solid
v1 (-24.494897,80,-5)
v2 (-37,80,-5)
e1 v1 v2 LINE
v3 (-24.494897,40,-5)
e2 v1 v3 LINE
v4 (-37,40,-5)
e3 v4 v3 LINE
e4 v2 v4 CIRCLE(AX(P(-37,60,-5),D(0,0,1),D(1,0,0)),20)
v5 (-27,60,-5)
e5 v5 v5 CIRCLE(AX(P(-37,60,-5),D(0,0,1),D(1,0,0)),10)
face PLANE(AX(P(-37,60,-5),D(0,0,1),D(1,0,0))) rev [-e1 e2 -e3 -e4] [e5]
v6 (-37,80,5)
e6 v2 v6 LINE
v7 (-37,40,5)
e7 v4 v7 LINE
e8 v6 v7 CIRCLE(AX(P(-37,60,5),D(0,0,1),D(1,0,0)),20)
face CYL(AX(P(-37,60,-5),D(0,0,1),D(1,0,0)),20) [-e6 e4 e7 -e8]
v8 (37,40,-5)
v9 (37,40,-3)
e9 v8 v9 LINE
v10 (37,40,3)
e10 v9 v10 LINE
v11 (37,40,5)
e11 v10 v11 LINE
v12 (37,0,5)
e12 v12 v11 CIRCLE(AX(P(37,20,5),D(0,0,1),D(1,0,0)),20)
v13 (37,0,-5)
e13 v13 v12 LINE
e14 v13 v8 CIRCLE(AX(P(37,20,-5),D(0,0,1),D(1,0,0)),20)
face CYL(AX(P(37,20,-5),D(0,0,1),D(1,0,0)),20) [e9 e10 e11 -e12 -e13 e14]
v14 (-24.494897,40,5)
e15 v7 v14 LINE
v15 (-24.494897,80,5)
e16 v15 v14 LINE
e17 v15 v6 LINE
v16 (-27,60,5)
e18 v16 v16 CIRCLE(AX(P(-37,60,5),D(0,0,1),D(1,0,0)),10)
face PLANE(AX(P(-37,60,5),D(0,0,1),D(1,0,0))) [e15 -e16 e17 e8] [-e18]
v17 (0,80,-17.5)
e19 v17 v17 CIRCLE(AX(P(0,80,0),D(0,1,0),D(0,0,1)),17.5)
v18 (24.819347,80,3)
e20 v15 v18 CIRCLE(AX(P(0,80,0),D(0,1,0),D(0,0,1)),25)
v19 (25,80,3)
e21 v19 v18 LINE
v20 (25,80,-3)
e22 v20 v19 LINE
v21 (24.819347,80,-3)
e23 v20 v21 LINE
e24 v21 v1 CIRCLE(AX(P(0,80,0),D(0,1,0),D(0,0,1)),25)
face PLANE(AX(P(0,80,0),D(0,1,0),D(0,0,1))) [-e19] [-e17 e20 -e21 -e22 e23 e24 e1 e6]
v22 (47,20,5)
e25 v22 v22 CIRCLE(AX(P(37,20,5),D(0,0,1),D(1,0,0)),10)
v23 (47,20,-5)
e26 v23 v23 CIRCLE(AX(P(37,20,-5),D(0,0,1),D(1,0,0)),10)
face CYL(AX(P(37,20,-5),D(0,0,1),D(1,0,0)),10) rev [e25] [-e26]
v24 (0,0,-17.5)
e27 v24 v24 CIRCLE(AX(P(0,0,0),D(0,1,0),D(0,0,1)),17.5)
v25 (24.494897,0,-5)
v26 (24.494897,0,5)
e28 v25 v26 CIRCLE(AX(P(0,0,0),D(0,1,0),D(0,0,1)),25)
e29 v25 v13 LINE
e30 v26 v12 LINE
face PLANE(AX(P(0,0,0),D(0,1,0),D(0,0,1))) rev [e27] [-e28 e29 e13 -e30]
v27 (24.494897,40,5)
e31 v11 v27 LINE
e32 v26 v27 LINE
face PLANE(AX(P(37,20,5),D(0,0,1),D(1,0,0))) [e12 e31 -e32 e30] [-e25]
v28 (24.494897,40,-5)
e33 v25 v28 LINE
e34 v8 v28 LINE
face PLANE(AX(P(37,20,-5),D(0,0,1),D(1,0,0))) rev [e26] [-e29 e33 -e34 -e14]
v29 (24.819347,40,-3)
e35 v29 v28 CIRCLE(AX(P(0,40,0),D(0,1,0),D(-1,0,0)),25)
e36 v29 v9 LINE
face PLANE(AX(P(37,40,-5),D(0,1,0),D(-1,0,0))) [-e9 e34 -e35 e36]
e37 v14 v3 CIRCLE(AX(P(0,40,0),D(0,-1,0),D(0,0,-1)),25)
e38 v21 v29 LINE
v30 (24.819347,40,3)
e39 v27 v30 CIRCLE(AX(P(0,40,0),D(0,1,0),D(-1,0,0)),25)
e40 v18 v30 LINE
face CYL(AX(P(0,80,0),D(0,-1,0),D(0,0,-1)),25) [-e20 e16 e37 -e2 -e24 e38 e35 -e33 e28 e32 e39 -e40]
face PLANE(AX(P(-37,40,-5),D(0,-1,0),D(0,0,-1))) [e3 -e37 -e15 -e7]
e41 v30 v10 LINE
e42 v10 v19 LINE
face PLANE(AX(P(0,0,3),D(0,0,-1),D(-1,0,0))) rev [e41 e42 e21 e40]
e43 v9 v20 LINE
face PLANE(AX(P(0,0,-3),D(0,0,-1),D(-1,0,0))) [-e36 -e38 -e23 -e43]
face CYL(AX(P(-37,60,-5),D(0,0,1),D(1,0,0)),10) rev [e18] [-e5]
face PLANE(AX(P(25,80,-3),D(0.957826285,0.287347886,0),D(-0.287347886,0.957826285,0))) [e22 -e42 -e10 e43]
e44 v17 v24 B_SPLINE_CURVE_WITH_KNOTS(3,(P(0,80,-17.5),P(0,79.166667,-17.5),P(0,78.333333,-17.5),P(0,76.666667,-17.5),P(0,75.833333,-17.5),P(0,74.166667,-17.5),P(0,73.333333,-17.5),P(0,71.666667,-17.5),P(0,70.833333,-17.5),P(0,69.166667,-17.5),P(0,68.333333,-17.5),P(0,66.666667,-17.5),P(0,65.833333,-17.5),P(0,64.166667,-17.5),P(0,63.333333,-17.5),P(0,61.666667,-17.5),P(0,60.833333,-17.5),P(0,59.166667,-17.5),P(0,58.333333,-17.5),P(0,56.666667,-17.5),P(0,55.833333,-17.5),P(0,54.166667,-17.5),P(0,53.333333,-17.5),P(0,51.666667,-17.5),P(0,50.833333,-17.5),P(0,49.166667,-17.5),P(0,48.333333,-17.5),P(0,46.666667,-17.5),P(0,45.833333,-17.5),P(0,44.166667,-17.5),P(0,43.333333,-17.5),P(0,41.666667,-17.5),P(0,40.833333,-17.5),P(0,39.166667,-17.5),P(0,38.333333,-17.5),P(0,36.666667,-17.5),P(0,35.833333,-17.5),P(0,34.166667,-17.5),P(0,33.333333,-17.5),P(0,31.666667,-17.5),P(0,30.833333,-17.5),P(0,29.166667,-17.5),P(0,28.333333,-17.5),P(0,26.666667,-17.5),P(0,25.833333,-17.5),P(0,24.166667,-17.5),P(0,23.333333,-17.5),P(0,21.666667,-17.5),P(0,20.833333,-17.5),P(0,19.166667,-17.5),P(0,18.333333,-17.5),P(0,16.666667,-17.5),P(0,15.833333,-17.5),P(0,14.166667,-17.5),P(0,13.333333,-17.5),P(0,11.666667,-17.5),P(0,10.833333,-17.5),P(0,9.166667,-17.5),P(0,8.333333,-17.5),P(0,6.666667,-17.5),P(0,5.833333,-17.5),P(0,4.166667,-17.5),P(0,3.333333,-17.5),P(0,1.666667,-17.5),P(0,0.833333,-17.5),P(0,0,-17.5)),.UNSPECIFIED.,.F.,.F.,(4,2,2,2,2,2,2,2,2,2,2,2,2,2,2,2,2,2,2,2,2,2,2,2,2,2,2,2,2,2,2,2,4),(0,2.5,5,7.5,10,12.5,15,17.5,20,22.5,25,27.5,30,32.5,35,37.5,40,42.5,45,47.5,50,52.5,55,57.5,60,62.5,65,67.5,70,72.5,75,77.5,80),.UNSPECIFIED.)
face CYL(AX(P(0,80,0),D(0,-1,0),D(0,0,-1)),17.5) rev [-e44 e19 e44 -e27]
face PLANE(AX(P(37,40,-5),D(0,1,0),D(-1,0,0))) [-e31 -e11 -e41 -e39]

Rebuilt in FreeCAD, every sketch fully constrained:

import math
import FreeCAD as App
import Part
import Sketcher

V = App.Vector


def add_polygon(sketch, points):
    """Adds a closed chain of lines whose ends are joined by coincident constraints."""
    first, n = sketch.GeometryCount, len(points)
    for a, b in zip(points, points[1:] + points[:1]):
        sketch.addGeometry(Part.LineSegment(App.Vector(*a, 0), App.Vector(*b, 0)), False)
    for i in range(n):
        sketch.addConstraint(Sketcher.Constraint("Coincident", first + i, 2, first + (i + 1) % n, 1))

doc = App.newDocument("Part")
body = doc.addObject("PartDesign::Body", "Body")

sketch1 = body.newObject("Sketcher::SketchObject", "Sketch")
sketch1.AttachmentSupport = (doc.getObject("XZ_Plane"), [""])
sketch1.MapMode = "FlatFace"
sketch1.addGeometry(Part.Circle(V(0, 0, 0), V(0, 0, 1), 25), False)
sketch1.addConstraint(Sketcher.Constraint("Coincident", 0, 3, -1, 1))
sketch1.addConstraint(Sketcher.Constraint("Diameter", 0, 50.0))
pad1 = body.newObject("PartDesign::Pad", "Pad")
pad1.Profile = sketch1
pad1.Length = 80
pad1.Reversed = True

sketch2 = body.newObject("Sketcher::SketchObject", "Sketch001")
sketch2.AttachmentSupport = (doc.getObject("XY_Plane"), [""])
sketch2.MapMode = "FlatFace"
sketch2.addGeometry(Part.LineSegment(V(0, 80, 0), V(-37, 80, 0)), False)
sketch2.addGeometry(Part.ArcOfCircle(Part.Circle(V(-37, 60, 0), V(0, 0, 1), 20), math.radians(90), math.radians(270)), False)
sketch2.addGeometry(Part.LineSegment(V(-37, 40, 0), V(0, 40, 0)), False)
sketch2.addGeometry(Part.LineSegment(V(0, 40, 0), V(0, 80, 0)), False)
sketch2.addGeometry(Part.Circle(V(-37, 60, 0), V(0, 0, 1), 10), False)
sketch2.addConstraint(Sketcher.Constraint("Tangent", 0, 2, 1, 1))
sketch2.addConstraint(Sketcher.Constraint("Tangent", 1, 2, 2, 1))
sketch2.addConstraint(Sketcher.Constraint("Coincident", 2, 2, 3, 1))
sketch2.addConstraint(Sketcher.Constraint("Coincident", 3, 2, 0, 1))
sketch2.addConstraint(Sketcher.Constraint("Horizontal", 0))
sketch2.addConstraint(Sketcher.Constraint("Horizontal", 2))
sketch2.addConstraint(Sketcher.Constraint("Vertical", 3))
sketch2.addConstraint(Sketcher.Constraint("Coincident", 4, 3, 1, 3))
sketch2.addConstraint(Sketcher.Constraint("PointOnObject", 2, 2, -2))
sketch2.addConstraint(Sketcher.Constraint("Diameter", 4, 20.0))
sketch2.addConstraint(Sketcher.Constraint("Radius", 1, 20.0))
sketch2.addConstraint(Sketcher.Constraint("DistanceX", 0, 2, 0, 1, 37.0))
sketch2.addConstraint(Sketcher.Constraint("DistanceY", -1, 1, 1, 3, 60.0))
pad2 = body.newObject("PartDesign::Pad", "Pad001")
pad2.Profile = sketch2
pad2.Type = "TwoLengths"
pad2.Length = 5
pad2.Length2 = 5

sketch3 = body.newObject("Sketcher::SketchObject", "Sketch002")
sketch3.AttachmentSupport = (doc.getObject("XY_Plane"), [""])
sketch3.MapMode = "FlatFace"
sketch3.addGeometry(Part.LineSegment(V(0, 0, 0), V(37, 0, 0)), False)
sketch3.addGeometry(Part.ArcOfCircle(Part.Circle(V(37, 20, 0), V(0, 0, 1), 20), math.radians(-90), math.radians(90)), False)
sketch3.addGeometry(Part.LineSegment(V(37, 40, 0), V(0, 40, 0)), False)
sketch3.addGeometry(Part.LineSegment(V(0, 40, 0), V(0, 0, 0)), False)
sketch3.addGeometry(Part.Circle(V(37, 20, 0), V(0, 0, 1), 10), False)
sketch3.addConstraint(Sketcher.Constraint("Tangent", 0, 2, 1, 1))
sketch3.addConstraint(Sketcher.Constraint("Tangent", 1, 2, 2, 1))
sketch3.addConstraint(Sketcher.Constraint("Coincident", 2, 2, 3, 1))
sketch3.addConstraint(Sketcher.Constraint("Coincident", 3, 2, 0, 1))
sketch3.addConstraint(Sketcher.Constraint("Horizontal", 0))
sketch3.addConstraint(Sketcher.Constraint("Horizontal", 2))
sketch3.addConstraint(Sketcher.Constraint("Vertical", 3))
sketch3.addConstraint(Sketcher.Constraint("Coincident", 3, 2, -1, 1))
sketch3.addConstraint(Sketcher.Constraint("Coincident", 4, 3, 1, 3))
sketch3.addConstraint(Sketcher.Constraint("Diameter", 4, 20.0))
sketch3.addConstraint(Sketcher.Constraint("Radius", 1, 20.0))
sketch3.addConstraint(Sketcher.Constraint("DistanceX", 0, 1, 0, 2, 37.0))
pad3 = body.newObject("PartDesign::Pad", "Pad002")
pad3.Profile = sketch3
pad3.Type = "TwoLengths"
pad3.Length = 5
pad3.Length2 = 5

sketch4 = body.newObject("Sketcher::SketchObject", "Sketch003")
sketch4.AttachmentSupport = (doc.getObject("XY_Plane"), [""])
sketch4.MapMode = "FlatFace"
add_polygon(sketch4, [(37, 40), (25, 80), (0, 80), (0, 40)])
sketch4.addConstraint(Sketcher.Constraint("Horizontal", 1))
sketch4.addConstraint(Sketcher.Constraint("Vertical", 2))
sketch4.addConstraint(Sketcher.Constraint("Horizontal", 3))
sketch4.addConstraint(Sketcher.Constraint("DistanceY", 2, 2, 2, 1, 40.0))
sketch4.addConstraint(Sketcher.Constraint("DistanceX", -1, 1, 0, 2, 25.0))
sketch4.addConstraint(Sketcher.Constraint("DistanceY", -1, 1, 0, 2, 80.0))
sketch4.addConstraint(Sketcher.Constraint("DistanceX", -1, 1, 3, 2, 37.0))
sketch4.addConstraint(Sketcher.Constraint("DistanceX", 1, 2, 1, 1, 24.747449))
pad4 = body.newObject("PartDesign::Pad", "Pad003")
pad4.Profile = sketch4
pad4.Type = "TwoLengths"
pad4.Length = 3
pad4.Length2 = 3

sketch5 = body.newObject("Sketcher::SketchObject", "Sketch004")
sketch5.AttachmentSupport = (doc.getObject("XZ_Plane"), [""])
sketch5.MapMode = "FlatFace"
sketch5.addGeometry(Part.Circle(V(0, 0, 0), V(0, 0, 1), 18), False)
sketch5.addConstraint(Sketcher.Constraint("Coincident", 0, 3, -1, 1))
sketch5.addConstraint(Sketcher.Constraint("Diameter", 0, 35.0))
pocket1 = body.newObject("PartDesign::Pocket", "Pocket")
pocket1.Profile = sketch5
pocket1.Length = 80

doc.recompute()
